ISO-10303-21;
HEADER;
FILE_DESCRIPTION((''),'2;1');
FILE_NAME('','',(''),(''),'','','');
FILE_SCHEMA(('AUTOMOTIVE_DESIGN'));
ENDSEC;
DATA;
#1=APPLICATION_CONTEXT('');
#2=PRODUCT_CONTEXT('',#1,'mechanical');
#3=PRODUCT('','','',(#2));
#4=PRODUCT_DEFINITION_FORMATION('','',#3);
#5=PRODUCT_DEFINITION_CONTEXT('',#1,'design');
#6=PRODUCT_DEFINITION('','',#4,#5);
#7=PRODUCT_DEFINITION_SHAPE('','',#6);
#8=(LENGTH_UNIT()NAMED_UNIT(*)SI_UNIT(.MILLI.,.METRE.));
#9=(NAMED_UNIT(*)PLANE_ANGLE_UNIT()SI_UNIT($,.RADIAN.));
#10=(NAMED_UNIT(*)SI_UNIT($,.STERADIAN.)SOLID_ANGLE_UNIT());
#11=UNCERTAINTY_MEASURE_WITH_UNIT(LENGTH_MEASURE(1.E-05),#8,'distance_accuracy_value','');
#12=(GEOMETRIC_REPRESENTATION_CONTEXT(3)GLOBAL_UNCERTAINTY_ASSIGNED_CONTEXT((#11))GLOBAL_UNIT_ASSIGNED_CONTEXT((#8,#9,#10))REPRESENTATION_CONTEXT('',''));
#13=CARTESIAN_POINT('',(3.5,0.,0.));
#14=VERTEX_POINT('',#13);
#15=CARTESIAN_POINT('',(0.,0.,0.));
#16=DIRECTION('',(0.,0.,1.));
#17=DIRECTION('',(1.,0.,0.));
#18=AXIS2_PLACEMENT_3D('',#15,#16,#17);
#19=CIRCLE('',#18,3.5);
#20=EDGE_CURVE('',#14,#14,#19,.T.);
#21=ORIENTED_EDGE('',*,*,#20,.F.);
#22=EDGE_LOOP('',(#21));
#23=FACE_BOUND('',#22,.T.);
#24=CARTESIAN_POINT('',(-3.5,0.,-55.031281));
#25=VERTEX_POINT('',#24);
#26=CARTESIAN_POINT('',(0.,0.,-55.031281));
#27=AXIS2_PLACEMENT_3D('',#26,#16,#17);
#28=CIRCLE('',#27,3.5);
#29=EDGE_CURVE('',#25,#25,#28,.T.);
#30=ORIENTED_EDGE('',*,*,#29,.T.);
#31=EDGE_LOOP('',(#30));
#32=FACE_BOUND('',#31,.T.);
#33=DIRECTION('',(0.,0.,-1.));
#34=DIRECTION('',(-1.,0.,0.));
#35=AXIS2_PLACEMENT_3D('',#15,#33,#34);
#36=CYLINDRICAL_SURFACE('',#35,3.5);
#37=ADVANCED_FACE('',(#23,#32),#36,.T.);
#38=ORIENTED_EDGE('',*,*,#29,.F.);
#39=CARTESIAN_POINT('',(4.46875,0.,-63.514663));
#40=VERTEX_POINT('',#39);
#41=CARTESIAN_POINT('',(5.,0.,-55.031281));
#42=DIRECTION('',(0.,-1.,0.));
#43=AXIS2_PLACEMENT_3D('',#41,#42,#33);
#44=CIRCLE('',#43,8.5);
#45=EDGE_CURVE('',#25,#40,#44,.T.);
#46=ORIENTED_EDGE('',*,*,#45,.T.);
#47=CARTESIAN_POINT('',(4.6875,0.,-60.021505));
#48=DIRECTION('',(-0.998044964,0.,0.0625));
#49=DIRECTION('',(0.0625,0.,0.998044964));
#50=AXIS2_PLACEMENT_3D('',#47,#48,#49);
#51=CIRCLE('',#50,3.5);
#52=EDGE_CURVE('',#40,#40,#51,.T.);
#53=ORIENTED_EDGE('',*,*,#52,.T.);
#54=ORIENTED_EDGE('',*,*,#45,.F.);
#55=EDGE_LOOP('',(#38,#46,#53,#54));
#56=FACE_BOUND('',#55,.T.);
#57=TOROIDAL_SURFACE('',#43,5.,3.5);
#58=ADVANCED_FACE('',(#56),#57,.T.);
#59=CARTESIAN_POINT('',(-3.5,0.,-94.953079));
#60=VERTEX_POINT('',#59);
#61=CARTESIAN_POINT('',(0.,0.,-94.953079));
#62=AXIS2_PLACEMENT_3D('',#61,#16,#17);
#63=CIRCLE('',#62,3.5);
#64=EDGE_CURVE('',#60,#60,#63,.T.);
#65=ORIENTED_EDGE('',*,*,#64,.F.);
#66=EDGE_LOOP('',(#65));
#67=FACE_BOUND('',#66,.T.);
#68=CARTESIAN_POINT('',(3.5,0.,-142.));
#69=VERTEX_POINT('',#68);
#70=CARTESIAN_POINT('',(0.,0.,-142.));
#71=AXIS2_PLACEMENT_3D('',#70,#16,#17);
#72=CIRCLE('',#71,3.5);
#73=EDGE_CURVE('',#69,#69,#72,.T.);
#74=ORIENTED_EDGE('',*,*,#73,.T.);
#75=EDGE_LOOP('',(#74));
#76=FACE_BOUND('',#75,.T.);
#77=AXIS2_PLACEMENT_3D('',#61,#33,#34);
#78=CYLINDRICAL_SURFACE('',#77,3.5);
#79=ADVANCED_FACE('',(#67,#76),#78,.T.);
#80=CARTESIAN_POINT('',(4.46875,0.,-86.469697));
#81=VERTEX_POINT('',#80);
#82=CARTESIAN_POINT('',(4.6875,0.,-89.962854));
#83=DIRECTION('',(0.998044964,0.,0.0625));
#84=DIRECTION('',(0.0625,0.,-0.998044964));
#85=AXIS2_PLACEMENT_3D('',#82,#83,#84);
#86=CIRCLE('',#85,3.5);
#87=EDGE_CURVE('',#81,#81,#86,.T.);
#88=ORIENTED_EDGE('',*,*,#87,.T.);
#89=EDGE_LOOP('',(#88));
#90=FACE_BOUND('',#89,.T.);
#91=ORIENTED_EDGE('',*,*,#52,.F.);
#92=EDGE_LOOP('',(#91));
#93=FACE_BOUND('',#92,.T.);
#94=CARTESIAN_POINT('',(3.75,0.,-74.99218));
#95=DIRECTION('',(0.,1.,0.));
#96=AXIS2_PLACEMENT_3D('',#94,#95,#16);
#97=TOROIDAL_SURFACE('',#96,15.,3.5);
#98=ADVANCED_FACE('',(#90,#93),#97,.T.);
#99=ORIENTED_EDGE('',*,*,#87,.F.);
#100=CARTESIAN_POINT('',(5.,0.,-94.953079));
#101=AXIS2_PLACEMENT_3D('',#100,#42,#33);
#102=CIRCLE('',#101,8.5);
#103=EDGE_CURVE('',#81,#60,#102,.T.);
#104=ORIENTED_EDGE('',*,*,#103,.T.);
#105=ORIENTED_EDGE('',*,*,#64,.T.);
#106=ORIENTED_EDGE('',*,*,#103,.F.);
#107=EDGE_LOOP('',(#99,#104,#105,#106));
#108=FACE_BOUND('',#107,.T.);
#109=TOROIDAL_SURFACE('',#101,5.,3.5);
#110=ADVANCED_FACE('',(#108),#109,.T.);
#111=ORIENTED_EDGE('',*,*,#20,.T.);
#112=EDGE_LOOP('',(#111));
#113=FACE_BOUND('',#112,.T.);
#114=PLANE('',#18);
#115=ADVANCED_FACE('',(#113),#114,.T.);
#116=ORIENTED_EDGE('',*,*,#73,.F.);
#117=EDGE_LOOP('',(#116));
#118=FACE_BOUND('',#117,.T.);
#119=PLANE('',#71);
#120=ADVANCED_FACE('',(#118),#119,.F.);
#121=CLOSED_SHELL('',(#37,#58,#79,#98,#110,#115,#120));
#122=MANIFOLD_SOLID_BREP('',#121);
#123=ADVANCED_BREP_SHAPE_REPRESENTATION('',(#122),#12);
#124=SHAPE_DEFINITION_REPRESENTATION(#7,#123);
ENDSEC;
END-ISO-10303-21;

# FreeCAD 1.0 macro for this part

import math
import FreeCAD as App
import Part
import Sketcher

doc = App.newDocument("Part")
body = doc.addObject("PartDesign::Body", "Body")

# Sketch on XY plane
sketch1 = doc.addObject("Sketcher::SketchObject", "Sketch")
body.addObject(sketch1)
sketch1.AttachmentSupport = (doc.XY_Plane, [""])
sketch1.MapMode = "FlatFace"
sketch1.addGeometry(Part.Circle(App.Vector(0, 0, 0), App.Vector(0, 0, 1), 3.5), False)
sketch1.addConstraint([
    Sketcher.Constraint("Coincident", 0, 3, -1, 1),
    Sketcher.Constraint("Diameter", 0, 7.0),
])

# Sketch on XZ plane
sketch2 = doc.addObject("Sketcher::SketchObject", "Sketch001")
body.addObject(sketch2)
sketch2.AttachmentSupport = (doc.XZ_Plane, [""])
sketch2.MapMode = "FlatFace"
sketch2.addGeometry([
    Part.LineSegment(App.Vector(0, 0, 0), App.Vector(0, -55, 0)),  # 0
    Part.ArcOfCircle(Part.Circle(App.Vector(5, -55, 0), App.Vector(0, 0, 1), 5), math.radians(180), math.radians(266)),  # 1
    Part.ArcOfCircle(Part.Circle(App.Vector(4, -75, 0), App.Vector(0, 0, 1), 15), math.radians(-86), math.radians(86)),  # 2
    Part.ArcOfCircle(Part.Circle(App.Vector(5, -95, 0), App.Vector(0, 0, 1), 5), math.radians(94), math.radians(180)),  # 3
    Part.LineSegment(App.Vector(0, -95, 0), App.Vector(0, -142, 0)),  # 4
], False)
sketch2.addConstraint([
    Sketcher.Constraint("Tangent", 0, 2, 1, 1),
    Sketcher.Constraint("Tangent", 1, 2, 2, 2),
    Sketcher.Constraint("Tangent", 2, 1, 3, 1),
    Sketcher.Constraint("Tangent", 3, 2, 4, 1),
    Sketcher.Constraint("Vertical", 0),
    Sketcher.Constraint("Vertical", 4),
    Sketcher.Constraint("Coincident", 0, 1, -1, 1),
    Sketcher.Constraint("Equal", 1, 3),
    Sketcher.Constraint("PointOnObject", 3, 2, -2),
    Sketcher.Constraint("Radius", 1, 5.0),
    Sketcher.Constraint("Radius", 2, 15.0),
    Sketcher.Constraint("DistanceY", 4, 2, -1, 1, 142.0),
    Sketcher.Constraint("DistanceX", -1, 1, 2, 3, 3.75),
    Sketcher.Constraint("DistanceY", 0, 2, 0, 1, 55.031281),
])
doc.recompute()

additivepipe = doc.addObject("PartDesign::AdditivePipe", "AdditivePipe")
body.addObject(additivepipe)
additivepipe.Profile = sketch1
additivepipe.Spine = (sketch2, ["Edge1", "Edge2", "Edge3", "Edge4", "Edge5"])

doc.recompute()
